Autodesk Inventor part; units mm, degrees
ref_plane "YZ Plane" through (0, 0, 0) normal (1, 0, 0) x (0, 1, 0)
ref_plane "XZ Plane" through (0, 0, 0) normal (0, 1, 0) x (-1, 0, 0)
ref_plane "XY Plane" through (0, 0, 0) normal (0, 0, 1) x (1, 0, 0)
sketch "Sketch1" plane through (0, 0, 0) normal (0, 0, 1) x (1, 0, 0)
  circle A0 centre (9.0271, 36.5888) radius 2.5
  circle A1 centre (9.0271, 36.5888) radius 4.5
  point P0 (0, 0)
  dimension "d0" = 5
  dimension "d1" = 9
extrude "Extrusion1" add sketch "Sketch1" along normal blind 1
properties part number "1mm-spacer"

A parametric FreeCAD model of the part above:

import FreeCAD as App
import Part
import Sketcher

V = App.Vector

doc = App.newDocument("Part")
body = doc.addObject("PartDesign::Body", "Body")

sketch1 = body.newObject("Sketcher::SketchObject", "Sketch")
sketch1.AttachmentSupport = (doc.getObject("XY_Plane"), [""])
sketch1.MapMode = "FlatFace"
sketch1.addGeometry([
    Part.Circle(V(9, 36.6, 0), V(0, 0, 1), 4.5),
    Part.Circle(V(9, 36.6, 0), V(0, 0, 1), 2.5),
], False)
sketch1.addConstraint([
    Sketcher.Constraint("Coincident", 1, 3, 0, 3),
    Sketcher.Constraint("Diameter", 0, 9.0),
    Sketcher.Constraint("Diameter", 1, 5.0),
    Sketcher.Constraint("DistanceX", -1, 1, 0, 3, 9.027),
    Sketcher.Constraint("DistanceY", -1, 1, 0, 3, 36.5888),
])
pad1 = body.newObject("PartDesign::Pad", "Pad")
pad1.Profile = sketch1
pad1.Length = 1

doc.recompute()
